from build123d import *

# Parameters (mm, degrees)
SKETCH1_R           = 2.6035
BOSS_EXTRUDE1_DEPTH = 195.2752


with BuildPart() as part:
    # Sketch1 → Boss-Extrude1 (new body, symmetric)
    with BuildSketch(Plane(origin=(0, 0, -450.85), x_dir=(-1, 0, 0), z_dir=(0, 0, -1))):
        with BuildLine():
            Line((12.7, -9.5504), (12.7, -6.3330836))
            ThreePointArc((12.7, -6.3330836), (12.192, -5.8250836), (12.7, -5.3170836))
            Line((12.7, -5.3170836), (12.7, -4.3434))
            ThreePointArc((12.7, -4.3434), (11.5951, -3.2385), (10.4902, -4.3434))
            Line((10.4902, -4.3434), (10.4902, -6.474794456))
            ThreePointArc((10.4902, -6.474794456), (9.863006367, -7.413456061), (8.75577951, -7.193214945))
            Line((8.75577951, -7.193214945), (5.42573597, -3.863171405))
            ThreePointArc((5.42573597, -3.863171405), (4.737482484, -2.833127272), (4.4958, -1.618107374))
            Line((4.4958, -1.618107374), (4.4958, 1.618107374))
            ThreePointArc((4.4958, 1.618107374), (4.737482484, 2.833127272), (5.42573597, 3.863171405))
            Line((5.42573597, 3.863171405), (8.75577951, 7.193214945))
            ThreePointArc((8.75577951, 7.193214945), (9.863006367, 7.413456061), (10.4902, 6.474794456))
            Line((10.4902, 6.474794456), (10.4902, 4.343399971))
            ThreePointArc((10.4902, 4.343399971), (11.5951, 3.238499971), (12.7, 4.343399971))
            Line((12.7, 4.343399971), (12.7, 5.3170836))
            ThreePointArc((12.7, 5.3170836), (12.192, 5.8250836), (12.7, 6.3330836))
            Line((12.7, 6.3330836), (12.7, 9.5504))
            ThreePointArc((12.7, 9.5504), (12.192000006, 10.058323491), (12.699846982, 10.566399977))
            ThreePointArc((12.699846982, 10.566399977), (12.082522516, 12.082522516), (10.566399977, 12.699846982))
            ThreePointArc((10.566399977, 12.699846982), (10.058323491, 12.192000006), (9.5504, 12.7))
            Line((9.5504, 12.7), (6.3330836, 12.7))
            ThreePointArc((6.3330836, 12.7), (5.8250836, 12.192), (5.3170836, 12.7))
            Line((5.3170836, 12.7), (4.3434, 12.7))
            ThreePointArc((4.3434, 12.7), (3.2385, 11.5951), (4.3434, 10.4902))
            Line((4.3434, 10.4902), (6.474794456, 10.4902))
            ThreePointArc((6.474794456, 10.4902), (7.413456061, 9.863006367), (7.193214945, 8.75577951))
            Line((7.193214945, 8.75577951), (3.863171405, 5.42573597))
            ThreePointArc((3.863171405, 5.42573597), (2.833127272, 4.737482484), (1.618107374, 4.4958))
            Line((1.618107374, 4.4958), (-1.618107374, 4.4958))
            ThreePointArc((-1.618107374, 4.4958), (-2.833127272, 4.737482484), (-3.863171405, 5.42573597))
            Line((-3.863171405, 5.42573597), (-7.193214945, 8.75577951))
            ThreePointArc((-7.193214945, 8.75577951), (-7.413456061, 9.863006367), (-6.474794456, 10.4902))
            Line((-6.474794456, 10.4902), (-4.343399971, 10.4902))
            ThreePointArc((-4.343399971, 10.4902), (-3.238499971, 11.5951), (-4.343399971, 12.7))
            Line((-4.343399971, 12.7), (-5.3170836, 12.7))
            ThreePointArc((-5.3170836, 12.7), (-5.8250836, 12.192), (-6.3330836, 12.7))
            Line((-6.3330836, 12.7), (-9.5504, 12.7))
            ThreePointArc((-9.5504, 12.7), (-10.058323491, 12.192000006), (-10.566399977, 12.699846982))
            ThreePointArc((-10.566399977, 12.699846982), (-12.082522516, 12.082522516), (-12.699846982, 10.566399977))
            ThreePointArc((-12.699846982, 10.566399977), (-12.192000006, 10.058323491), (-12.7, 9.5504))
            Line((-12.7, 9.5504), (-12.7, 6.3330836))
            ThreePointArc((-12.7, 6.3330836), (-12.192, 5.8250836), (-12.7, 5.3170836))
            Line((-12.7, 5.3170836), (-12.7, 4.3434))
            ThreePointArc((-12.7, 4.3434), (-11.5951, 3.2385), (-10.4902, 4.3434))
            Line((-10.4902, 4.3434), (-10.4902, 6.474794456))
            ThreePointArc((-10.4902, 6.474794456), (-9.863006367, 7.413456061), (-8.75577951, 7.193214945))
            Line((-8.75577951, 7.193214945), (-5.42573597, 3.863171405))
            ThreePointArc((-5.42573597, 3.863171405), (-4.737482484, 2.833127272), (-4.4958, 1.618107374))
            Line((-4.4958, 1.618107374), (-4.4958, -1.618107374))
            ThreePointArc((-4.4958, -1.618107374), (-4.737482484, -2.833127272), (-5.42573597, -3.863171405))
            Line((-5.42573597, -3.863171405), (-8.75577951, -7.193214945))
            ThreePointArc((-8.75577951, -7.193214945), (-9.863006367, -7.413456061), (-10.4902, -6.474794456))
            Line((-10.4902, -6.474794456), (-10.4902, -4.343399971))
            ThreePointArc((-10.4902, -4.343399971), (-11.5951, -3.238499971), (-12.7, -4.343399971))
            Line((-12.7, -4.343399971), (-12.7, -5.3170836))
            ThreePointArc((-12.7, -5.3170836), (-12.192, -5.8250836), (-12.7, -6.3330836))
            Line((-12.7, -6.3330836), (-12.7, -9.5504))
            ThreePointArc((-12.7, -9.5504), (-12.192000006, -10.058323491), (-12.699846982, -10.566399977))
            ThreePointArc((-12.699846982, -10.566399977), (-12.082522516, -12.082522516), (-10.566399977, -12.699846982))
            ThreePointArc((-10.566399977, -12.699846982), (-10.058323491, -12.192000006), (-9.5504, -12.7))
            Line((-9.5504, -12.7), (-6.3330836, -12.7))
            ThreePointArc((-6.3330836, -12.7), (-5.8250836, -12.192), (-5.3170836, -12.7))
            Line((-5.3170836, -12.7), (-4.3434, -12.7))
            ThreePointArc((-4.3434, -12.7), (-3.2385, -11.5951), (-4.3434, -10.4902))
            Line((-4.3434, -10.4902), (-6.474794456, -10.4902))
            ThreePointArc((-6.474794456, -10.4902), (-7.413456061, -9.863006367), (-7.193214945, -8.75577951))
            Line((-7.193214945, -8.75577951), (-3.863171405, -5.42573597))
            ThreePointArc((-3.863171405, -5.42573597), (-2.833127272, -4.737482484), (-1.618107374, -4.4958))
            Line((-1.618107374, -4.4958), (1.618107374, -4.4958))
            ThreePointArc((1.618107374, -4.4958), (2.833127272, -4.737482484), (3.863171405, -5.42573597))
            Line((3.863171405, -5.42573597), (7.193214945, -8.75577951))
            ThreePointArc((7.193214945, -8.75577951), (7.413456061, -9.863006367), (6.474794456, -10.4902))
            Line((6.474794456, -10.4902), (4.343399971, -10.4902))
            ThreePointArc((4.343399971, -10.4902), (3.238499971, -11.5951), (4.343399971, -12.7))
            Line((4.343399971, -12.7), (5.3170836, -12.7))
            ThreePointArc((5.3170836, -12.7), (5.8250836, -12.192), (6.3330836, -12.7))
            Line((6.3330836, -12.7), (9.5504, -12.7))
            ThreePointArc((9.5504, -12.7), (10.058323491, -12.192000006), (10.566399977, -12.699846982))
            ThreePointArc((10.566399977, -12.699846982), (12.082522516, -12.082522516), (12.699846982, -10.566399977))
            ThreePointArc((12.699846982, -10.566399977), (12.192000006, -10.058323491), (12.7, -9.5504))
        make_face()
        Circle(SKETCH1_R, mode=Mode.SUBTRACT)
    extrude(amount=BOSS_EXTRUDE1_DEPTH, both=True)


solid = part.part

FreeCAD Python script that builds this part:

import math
import FreeCAD as App
import Part
import Sketcher

V = App.Vector
Q = App.Units.Quantity

doc = App.newDocument("Part")
body = doc.addObject("PartDesign::Body", "Body")

# Sketch on XY plane
sketch1 = body.newObject("Sketcher::SketchObject", "Sketch")
sketch1.AttachmentSupport = (doc.getObject("XY_Plane"), [""])
sketch1.MapMode = "FlatFace"
sketch1.AttachmentOffset = App.Placement(V(0, 0, -17.75 * 25.4), App.Rotation())
sketch1.addGeometry([
    Part.LineSegment(V(-12.7, -9.6, 0), V(-12.7, -6.3, 0)),  # 0
    Part.ArcOfCircle(Part.Circle(V(-12.7, -5.8, 0), V(0, 0, 1), 0.5), math.radians(-90), math.radians(90)),  # 1
    Part.LineSegment(V(-12.7, -5.3, 0), V(-12.7, -4.3, 0)),  # 2
    Part.ArcOfCircle(Part.Circle(V(-11.6, -4.3, 0), V(0, 0, 1), 1.1), math.radians(0), math.radians(180)),  # 3
    Part.LineSegment(V(-10.5, -4.3, 0), V(-10.5, -6.5, 0)),  # 4
    Part.ArcOfCircle(Part.Circle(V(-9.5, -6.5, 0), V(0, 0, 1), 1), math.radians(180), math.radians(315)),  # 5
    Part.LineSegment(V(-8.8, -7.2, 0), V(-5.4, -3.9, 0)),  # 6
    Part.ArcOfCircle(Part.Circle(V(-7.7, -1.6, 0), V(0, 0, 1), 3.2), math.radians(-45), math.radians(0)),  # 7
    Part.LineSegment(V(-4.5, -1.6, 0), V(-4.5, 1.6, 0)),  # 8
    Part.ArcOfCircle(Part.Circle(V(-7.7, 1.6, 0), V(0, 0, 1), 3.2), math.radians(0), math.radians(45)),  # 9
    Part.LineSegment(V(-5.4, 3.9, 0), V(-8.8, 7.2, 0)),  # 10
    Part.ArcOfCircle(Part.Circle(V(-9.5, 6.5, 0), V(0, 0, 1), 1), math.radians(45), math.radians(180)),  # 11
    Part.LineSegment(V(-10.5, 6.5, 0), V(-10.5, 4.3, 0)),  # 12
    Part.ArcOfCircle(Part.Circle(V(-11.6, 4.3, 0), V(0, 0, 1), 1.1), math.radians(180), math.radians(360)),  # 13
    Part.LineSegment(V(-12.7, 4.3, 0), V(-12.7, 5.3, 0)),  # 14
    Part.ArcOfCircle(Part.Circle(V(-12.7, 5.8, 0), V(0, 0, 1), 0.5), math.radians(-90), math.radians(90)),  # 15
    Part.LineSegment(V(-12.7, 6.3, 0), V(-12.7, 9.6, 0)),  # 16
    Part.ArcOfCircle(Part.Circle(V(-12.7, 10.1, 0), V(0, 0, 1), 0.5), math.radians(-90), math.radians(90)),  # 17
    Part.ArcOfCircle(Part.Circle(V(-10.6, 10.6, 0), V(0, 0, 1), 2.1), math.radians(89), math.radians(181)),  # 18
    Part.ArcOfCircle(Part.Circle(V(-10.1, 12.7, 0), V(0, 0, 1), 0.5), math.radians(-180), math.radians(0)),  # 19
    Part.LineSegment(V(-9.6, 12.7, 0), V(-6.3, 12.7, 0)),  # 20
    Part.ArcOfCircle(Part.Circle(V(-5.8, 12.7, 0), V(0, 0, 1), 0.5), math.radians(180), math.radians(360)),  # 21
    Part.LineSegment(V(-5.3, 12.7, 0), V(-4.3, 12.7, 0)),  # 22
    Part.ArcOfCircle(Part.Circle(V(-4.3, 11.6, 0), V(0, 0, 1), 1.1), math.radians(-90), math.radians(90)),  # 23
    Part.LineSegment(V(-4.3, 10.5, 0), V(-6.5, 10.5, 0)),  # 24
    Part.ArcOfCircle(Part.Circle(V(-6.5, 9.5, 0), V(0, 0, 1), 1), math.radians(90), math.radians(225)),  # 25
    Part.LineSegment(V(-7.2, 8.8, 0), V(-3.9, 5.4, 0)),  # 26
    Part.ArcOfCircle(Part.Circle(V(-1.6, 7.7, 0), V(0, 0, 1), 3.2), math.radians(-135), math.radians(-90)),  # 27
    Part.LineSegment(V(-1.6, 4.5, 0), V(1.6, 4.5, 0)),  # 28
    Part.ArcOfCircle(Part.Circle(V(1.6, 7.7, 0), V(0, 0, 1), 3.2), math.radians(-90), math.radians(-45)),  # 29
    Part.LineSegment(V(3.9, 5.4, 0), V(7.2, 8.8, 0)),  # 30
    Part.ArcOfCircle(Part.Circle(V(6.5, 9.5, 0), V(0, 0, 1), 1), math.radians(-45), math.radians(90)),  # 31
    Part.LineSegment(V(6.5, 10.5, 0), V(4.3, 10.5, 0)),  # 32
    Part.ArcOfCircle(Part.Circle(V(4.3, 11.6, 0), V(0, 0, 1), 1.1), math.radians(90), math.radians(270)),  # 33
    Part.LineSegment(V(4.3, 12.7, 0), V(5.3, 12.7, 0)),  # 34
    Part.ArcOfCircle(Part.Circle(V(5.8, 12.7, 0), V(0, 0, 1), 0.5), math.radians(180), math.radians(360)),  # 35
    Part.LineSegment(V(6.3, 12.7, 0), V(9.6, 12.7, 0)),  # 36
    Part.ArcOfCircle(Part.Circle(V(10.1, 12.7, 0), V(0, 0, 1), 0.5), math.radians(180), math.radians(360)),  # 37
    Part.ArcOfCircle(Part.Circle(V(10.6, 10.6, 0), V(0, 0, 1), 2.1), math.radians(-1), math.radians(91)),  # 38
    Part.ArcOfCircle(Part.Circle(V(12.7, 10.1, 0), V(0, 0, 1), 0.5), math.radians(90), math.radians(270)),  # 39
    Part.LineSegment(V(12.7, 9.6, 0), V(12.7, 6.3, 0)),  # 40
    Part.ArcOfCircle(Part.Circle(V(12.7, 5.8, 0), V(0, 0, 1), 0.5), math.radians(90), math.radians(270)),  # 41
    Part.LineSegment(V(12.7, 5.3, 0), V(12.7, 4.3, 0)),  # 42
    Part.ArcOfCircle(Part.Circle(V(11.6, 4.3, 0), V(0, 0, 1), 1.1), math.radians(180), math.radians(360)),  # 43
    Part.LineSegment(V(10.5, 4.3, 0), V(10.5, 6.5, 0)),  # 44
    Part.ArcOfCircle(Part.Circle(V(9.5, 6.5, 0), V(0, 0, 1), 1), math.radians(0), math.radians(135)),  # 45
    Part.LineSegment(V(8.8, 7.2, 0), V(5.4, 3.9, 0)),  # 46
    Part.ArcOfCircle(Part.Circle(V(7.7, 1.6, 0), V(0, 0, 1), 3.2), math.radians(135), math.radians(180)),  # 47
    Part.LineSegment(V(4.5, 1.6, 0), V(4.5, -1.6, 0)),  # 48
    Part.ArcOfCircle(Part.Circle(V(7.7, -1.6, 0), V(0, 0, 1), 3.2), math.radians(180), math.radians(225)),  # 49
    Part.LineSegment(V(5.4, -3.9, 0), V(8.8, -7.2, 0)),  # 50
    Part.ArcOfCircle(Part.Circle(V(9.5, -6.5, 0), V(0, 0, 1), 1), math.radians(-135), math.radians(0)),  # 51
    Part.LineSegment(V(10.5, -6.5, 0), V(10.5, -4.3, 0)),  # 52
    Part.ArcOfCircle(Part.Circle(V(11.6, -4.3, 0), V(0, 0, 1), 1.1), math.radians(0), math.radians(180)),  # 53
    Part.LineSegment(V(12.7, -4.3, 0), V(12.7, -5.3, 0)),  # 54
    Part.ArcOfCircle(Part.Circle(V(12.7, -5.8, 0), V(0, 0, 1), 0.5), math.radians(90), math.radians(270)),  # 55
    Part.LineSegment(V(12.7, -6.3, 0), V(12.7, -9.6, 0)),  # 56
    Part.ArcOfCircle(Part.Circle(V(12.7, -10.1, 0), V(0, 0, 1), 0.5), math.radians(90), math.radians(270)),  # 57
    Part.ArcOfCircle(Part.Circle(V(10.6, -10.6, 0), V(0, 0, 1), 2.1), math.radians(-91), math.radians(1)),  # 58
    Part.ArcOfCircle(Part.Circle(V(10.1, -12.7, 0), V(0, 0, 1), 0.5), math.radians(0), math.radians(180)),  # 59
    Part.LineSegment(V(9.6, -12.7, 0), V(6.3, -12.7, 0)),  # 60
    Part.ArcOfCircle(Part.Circle(V(5.8, -12.7, 0), V(0, 0, 1), 0.5), math.radians(0), math.radians(180)),  # 61
    Part.LineSegment(V(5.3, -12.7, 0), V(4.3, -12.7, 0)),  # 62
    Part.ArcOfCircle(Part.Circle(V(4.3, -11.6, 0), V(0, 0, 1), 1.1), math.radians(90), math.radians(270)),  # 63
    Part.LineSegment(V(4.3, -10.5, 0), V(6.5, -10.5, 0)),  # 64
    Part.ArcOfCircle(Part.Circle(V(6.5, -9.5, 0), V(0, 0, 1), 1), math.radians(-90), math.radians(45)),  # 65
    Part.LineSegment(V(7.2, -8.8, 0), V(3.9, -5.4, 0)),  # 66
    Part.ArcOfCircle(Part.Circle(V(1.6, -7.7, 0), V(0, 0, 1), 3.2), math.radians(45), math.radians(90)),  # 67
    Part.LineSegment(V(1.6, -4.5, 0), V(-1.6, -4.5, 0)),  # 68
    Part.ArcOfCircle(Part.Circle(V(-1.6, -7.7, 0), V(0, 0, 1), 3.2), math.radians(90), math.radians(135)),  # 69
    Part.LineSegment(V(-3.9, -5.4, 0), V(-7.2, -8.8, 0)),  # 70
    Part.ArcOfCircle(Part.Circle(V(-6.5, -9.5, 0), V(0, 0, 1), 1), math.radians(135), math.radians(270)),  # 71
    Part.LineSegment(V(-6.5, -10.5, 0), V(-4.3, -10.5, 0)),  # 72
    Part.ArcOfCircle(Part.Circle(V(-4.3, -11.6, 0), V(0, 0, 1), 1.1), math.radians(-90), math.radians(90)),  # 73
    Part.LineSegment(V(-4.3, -12.7, 0), V(-5.3, -12.7, 0)),  # 74
    Part.ArcOfCircle(Part.Circle(V(-5.8, -12.7, 0), V(0, 0, 1), 0.5), math.radians(0), math.radians(180)),  # 75
    Part.LineSegment(V(-6.3, -12.7, 0), V(-9.6, -12.7, 0)),  # 76
    Part.ArcOfCircle(Part.Circle(V(-10.1, -12.7, 0), V(0, 0, 1), 0.5), math.radians(0), math.radians(180)),  # 77
    Part.ArcOfCircle(Part.Circle(V(-10.6, -10.6, 0), V(0, 0, 1), 2.1), math.radians(179), math.radians(271)),  # 78
    Part.ArcOfCircle(Part.Circle(V(-12.7, -10.1, 0), V(0, 0, 1), 0.5), math.radians(-90), math.radians(90)),  # 79
    Part.Circle(V(0, 0, 0), V(0, 0, 1), 2.6),  # 80
], False)
sketch1.addConstraint([
    Sketcher.Constraint("Coincident", 0, 2, 1, 1),
    Sketcher.Constraint("Coincident", 1, 2, 2, 1),
    Sketcher.Constraint("Tangent", 2, 2, 3, 2),
    Sketcher.Constraint("Tangent", 3, 1, 4, 1),
    Sketcher.Constraint("Tangent", 4, 2, 5, 1),
    Sketcher.Constraint("Tangent", 5, 2, 6, 1),
    Sketcher.Constraint("Tangent", 6, 2, 7, 1),
    Sketcher.Constraint("Tangent", 7, 2, 8, 1),
    Sketcher.Constraint("Tangent", 8, 2, 9, 1),
    Sketcher.Constraint("Tangent", 9, 2, 10, 1),
    Sketcher.Constraint("Tangent", 10, 2, 11, 1),
    Sketcher.Constraint("Tangent", 11, 2, 12, 1),
    Sketcher.Constraint("Tangent", 12, 2, 13, 2),
    Sketcher.Constraint("Tangent", 13, 1, 14, 1),
    Sketcher.Constraint("Coincident", 14, 2, 15, 1),
    Sketcher.Constraint("Coincident", 15, 2, 16, 1),
    Sketcher.Constraint("Coincident", 16, 2, 17, 1),
    Sketcher.Constraint("Coincident", 17, 2, 18, 2),
    Sketcher.Constraint("Coincident", 18, 1, 19, 1),
    Sketcher.Constraint("Coincident", 19, 2, 20, 1),
    Sketcher.Constraint("Coincident", 20, 2, 21, 1),
    Sketcher.Constraint("Coincident", 21, 2, 22, 1),
    Sketcher.Constraint("Tangent", 22, 2, 23, 2),
    Sketcher.Constraint("Tangent", 23, 1, 24, 1),
    Sketcher.Constraint("Tangent", 24, 2, 25, 1),
    Sketcher.Constraint("Tangent", 25, 2, 26, 1),
    Sketcher.Constraint("Tangent", 26, 2, 27, 1),
    Sketcher.Constraint("Tangent", 27, 2, 28, 1),
    Sketcher.Constraint("Tangent", 28, 2, 29, 1),
    Sketcher.Constraint("Tangent", 29, 2, 30, 1),
    Sketcher.Constraint("Tangent", 30, 2, 31, 1),
    Sketcher.Constraint("Tangent", 31, 2, 32, 1),
    Sketcher.Constraint("Tangent", 32, 2, 33, 2),
    Sketcher.Constraint("Tangent", 33, 1, 34, 1),
    Sketcher.Constraint("Coincident", 34, 2, 35, 1),
    Sketcher.Constraint("Coincident", 35, 2, 36, 1),
    Sketcher.Constraint("Coincident", 36, 2, 37, 1),
    Sketcher.Constraint("Coincident", 37, 2, 38, 2),
    Sketcher.Constraint("Coincident", 38, 1, 39, 1),
    Sketcher.Constraint("Coincident", 39, 2, 40, 1),
    Sketcher.Constraint("Coincident", 40, 2, 41, 1),
    Sketcher.Constraint("Coincident", 41, 2, 42, 1),
    Sketcher.Constraint("Tangent", 42, 2, 43, 2),
    Sketcher.Constraint("Tangent", 43, 1, 44, 1),
    Sketcher.Constraint("Tangent", 44, 2, 45, 1),
    Sketcher.Constraint("Tangent", 45, 2, 46, 1),
    Sketcher.Constraint("Tangent", 46, 2, 47, 1),
    Sketcher.Constraint("Tangent", 47, 2, 48, 1),
    Sketcher.Constraint("Tangent", 48, 2, 49, 1),
    Sketcher.Constraint("Tangent", 49, 2, 50, 1),
    Sketcher.Constraint("Tangent", 50, 2, 51, 1),
    Sketcher.Constraint("Tangent", 51, 2, 52, 1),
    Sketcher.Constraint("Tangent", 52, 2, 53, 2),
    Sketcher.Constraint("Tangent", 53, 1, 54, 1),
    Sketcher.Constraint("Coincident", 54, 2, 55, 1),
    Sketcher.Constraint("Coincident", 55, 2, 56, 1),
    Sketcher.Constraint("Coincident", 56, 2, 57, 1),
    Sketcher.Constraint("Coincident", 57, 2, 58, 2),
    Sketcher.Constraint("Coincident", 58, 1, 59, 1),
    Sketcher.Constraint("Coincident", 59, 2, 60, 1),
    Sketcher.Constraint("Coincident", 60, 2, 61, 1),
    Sketcher.Constraint("Coincident", 61, 2, 62, 1),
    Sketcher.Constraint("Tangent", 62, 2, 63, 2),
    Sketcher.Constraint("Tangent", 63, 1, 64, 1),
    Sketcher.Constraint("Tangent", 64, 2, 65, 1),
    Sketcher.Constraint("Tangent", 65, 2, 66, 1),
    Sketcher.Constraint("Tangent", 66, 2, 67, 1),
    Sketcher.Constraint("Tangent", 67, 2, 68, 1),
    Sketcher.Constraint("Tangent", 68, 2, 69, 1),
    Sketcher.Constraint("Tangent", 69, 2, 70, 1),
    Sketcher.Constraint("Tangent", 70, 2, 71, 1),
    Sketcher.Constraint("Tangent", 71, 2, 72, 1),
    Sketcher.Constraint("Tangent", 72, 2, 73, 2),
    Sketcher.Constraint("Tangent", 73, 1, 74, 1),
    Sketcher.Constraint("Coincident", 74, 2, 75, 1),
    Sketcher.Constraint("Coincident", 75, 2, 76, 1),
    Sketcher.Constraint("Coincident", 76, 2, 77, 1),
    Sketcher.Constraint("Coincident", 77, 2, 78, 2),
    Sketcher.Constraint("Coincident", 78, 1, 79, 1),
    Sketcher.Constraint("Coincident", 79, 2, 0, 1),
    Sketcher.Constraint("Vertical", 0),
    Sketcher.Constraint("Vertical", 2),
    Sketcher.Constraint("Vertical", 4),
    Sketcher.Constraint("Vertical", 8),
    Sketcher.Constraint("Vertical", 12),
    Sketcher.Constraint("Vertical", 14),
    Sketcher.Constraint("Vertical", 16),
    Sketcher.Constraint("Horizontal", 20),
    Sketcher.Constraint("Horizontal", 22),
    Sketcher.Constraint("Horizontal", 24),
    Sketcher.Constraint("Horizontal", 28),
    Sketcher.Constraint("Horizontal", 32),
    Sketcher.Constraint("Horizontal", 34),
    Sketcher.Constraint("Horizontal", 36),
    Sketcher.Constraint("Vertical", 40),
    Sketcher.Constraint("Vertical", 42),
    Sketcher.Constraint("Vertical", 44),
    Sketcher.Constraint("Vertical", 48),
    Sketcher.Constraint("Vertical", 52),
    Sketcher.Constraint("Vertical", 54),
    Sketcher.Constraint("Vertical", 56),
    Sketcher.Constraint("Horizontal", 60),
    Sketcher.Constraint("Horizontal", 62),
    Sketcher.Constraint("Horizontal", 64),
    Sketcher.Constraint("Horizontal", 68),
    Sketcher.Constraint("Horizontal", 72),
    Sketcher.Constraint("Horizontal", 74),
    Sketcher.Constraint("Horizontal", 76),
    Sketcher.Constraint("Coincident", 80, 3, -1, 1),
    Sketcher.Constraint("Equal", 7, 9),
    Sketcher.Constraint("Equal", 5, 11),
    Sketcher.Constraint("Equal", 3, 13),
    Sketcher.Constraint("Equal", 1, 15),
    Sketcher.Constraint("Equal", 15, 17),
    Sketcher.Constraint("Equal", 17, 19),
    Sketcher.Constraint("Equal", 19, 21),
    Sketcher.Constraint("Equal", 13, 23),
    Sketcher.Constraint("Equal", 11, 25),
    Sketcher.Constraint("Equal", 9, 27),
    Sketcher.Constraint("Equal", 27, 29),
    Sketcher.Constraint("Equal", 25, 31),
    Sketcher.Constraint("Equal", 23, 33),
    Sketcher.Constraint("Equal", 21, 35),
    Sketcher.Constraint("Equal", 35, 37),
    Sketcher.Constraint("Equal", 18, 38),
    Sketcher.Constraint("Equal", 37, 39),
    Sketcher.Constraint("Equal", 39, 41),
    Sketcher.Constraint("Equal", 33, 43),
    Sketcher.Constraint("Equal", 31, 45),
    Sketcher.Constraint("Equal", 29, 47),
    Sketcher.Constraint("Equal", 47, 49),
    Sketcher.Constraint("Equal", 45, 51),
    Sketcher.Constraint("Equal", 43, 53),
    Sketcher.Constraint("Equal", 41, 55),
    Sketcher.Constraint("Equal", 55, 57),
    Sketcher.Constraint("Equal", 38, 58),
    Sketcher.Constraint("Equal", 57, 59),
    Sketcher.Constraint("Equal", 59, 61),
    Sketcher.Constraint("Equal", 53, 63),
    Sketcher.Constraint("Equal", 51, 65),
    Sketcher.Constraint("Equal", 49, 67),
    Sketcher.Constraint("Equal", 67, 69),
    Sketcher.Constraint("Equal", 65, 71),
    Sketcher.Constraint("Equal", 63, 73),
    Sketcher.Constraint("Equal", 61, 75),
    Sketcher.Constraint("Equal", 75, 77),
    Sketcher.Constraint("Equal", 58, 78),
    Sketcher.Constraint("Equal", 77, 79),
    Sketcher.Constraint("Symmetric", 1, 3, 41, 3, -1, 1),
    Sketcher.Constraint("Symmetric", 3, 3, 43, 3, -1, 1),
    Sketcher.Constraint("Symmetric", 7, 3, 47, 3, -1, 1),
    Sketcher.Constraint("Symmetric", 11, 3, 51, 3, -1, 1),
    Sketcher.Constraint("Symmetric", 15, 3, 55, 3, -1, 1),
    Sketcher.Constraint("Symmetric", 17, 3, 57, 3, -1, 1),
    Sketcher.Constraint("Symmetric", 18, 3, 58, 3, -1, 1),
    Sketcher.Constraint("Symmetric", 19, 3, 59, 3, -1, 1),
    Sketcher.Constraint("Symmetric", 21, 3, 61, 3, -1, 1),
    Sketcher.Constraint("Symmetric", 23, 3, 63, 3, -1, 1),
    Sketcher.Constraint("Symmetric", 27, 3, 67, 3, -1, 1),
    Sketcher.Constraint("Symmetric", 31, 3, 71, 3, -1, 1),
    Sketcher.Constraint("Symmetric", 35, 3, 75, 3, -1, 1),
    Sketcher.Constraint("Symmetric", 37, 3, 77, 3, -1, 1),
    Sketcher.Constraint("Symmetric", 38, 3, 78, 3, -1, 1),
    Sketcher.Constraint("Symmetric", 39, 3, 79, 3, -1, 1),
    Sketcher.Constraint("Symmetric", 25, 3, 31, 3, -2),
    Sketcher.Constraint("Symmetric", 21, 3, 35, 3, -2),
    Sketcher.Constraint("Symmetric", 19, 3, 37, 3, -2),
    Sketcher.Constraint("Symmetric", 18, 3, 38, 3, -2),
    Sketcher.Constraint("Symmetric", 17, 3, 39, 3, -2),
    Sketcher.Constraint("Symmetric", 15, 3, 41, 3, -2),
    Sketcher.Constraint("Symmetric", 13, 3, 43, 3, -2),
    Sketcher.Constraint("Symmetric", 10, 2, 45, 2, -2),
    Sketcher.Constraint("Symmetric", 6, 2, 49, 2, -2),
    Sketcher.Constraint("Symmetric", 66, 2, 69, 2, -2),
    Sketcher.Constraint("Perpendicular", 6, 10),
    Sketcher.Constraint("Parallel", 10, 26),
    Sketcher.Constraint("Perpendicular", 26, 30),
    Sketcher.Constraint("Horizontal", 19, 3, 21, 3),
    Sketcher.Constraint("Horizontal", 3, 3, 53, 3),
    Sketcher.Constraint("Horizontal", 37, 3, 19, 2),
    Sketcher.Constraint("Horizontal", 20, 2, 21, 2),
    Sketcher.Constraint("Horizontal", 34, 2, 35, 2),
    Sketcher.Constraint("Horizontal", 77, 3, 59, 2),
    Sketcher.Constraint("Horizontal", 74, 2, 75, 2),
    Sketcher.Constraint("Vertical", 15, 3, 17, 3),
    Sketcher.Constraint("Vertical", 33, 3, 63, 3),
    Sketcher.Constraint("Vertical", 23, 3, 73, 3),
    Sketcher.Constraint("Vertical", 79, 3, 0, 2),
    Sketcher.Constraint("Vertical", 0, 2, 1, 2),
    Sketcher.Constraint("Vertical", 14, 2, 15, 2),
    Sketcher.Constraint("Vertical", 57, 3, 39, 2),
    Sketcher.Constraint("Vertical", 54, 2, 55, 2),
    Sketcher.Constraint("Equal", 76, 0),
    Sketcher.Constraint("Equal", 74, 2),
    Sketcher.Constraint("Equal", 72, 4),
    Sketcher.Constraint("Equal", 68, 8),
    Sketcher.Constraint("Equal", 10, 26),
    Sketcher.Constraint("Radius", 1, Q("0.02 in")),
    Sketcher.Constraint("Radius", 5, Q("0.04 in")),
    Sketcher.Constraint("Diameter", 80, Q("0.205 in")),
    Sketcher.Constraint("Radius", 7, Q("0.125 in")),
    Sketcher.Constraint("Radius", 18, Q("0.083 in")),
    Sketcher.Constraint("DistanceX", 1, 3, -1, 1, Q("0.5 in")),
    Sketcher.Constraint("DistanceY", -1, 1, 19, 3, Q("0.5 in")),
    Sketcher.Constraint("Radius", 3, Q("0.0435 in")),
    Sketcher.Constraint("DistanceY", 3, 3, -1, 1, Q("0.171 in")),
    Sketcher.Constraint("DistanceX", 7, 3, -1, 1, Q("0.302 in")),
    Sketcher.Constraint("DistanceY", -1, 1, 17, 3, Q("0.396 in")),
    Sketcher.Constraint("DistanceX", 18, 3, -1, 1, Q("0.417 in")),
    Sketcher.Constraint("DistanceY", -1, 1, 18, 3, Q("0.417 in")),
    Sketcher.Constraint("DistanceX", 20, 1, 20, 2, Q("3.217316 mm")),
    Sketcher.Constraint("DistanceX", 24, 2, 24, 1, Q("2.131394 mm")),
])
pad1 = body.newObject("PartDesign::Pad", "Pad")
pad1.Profile = sketch1
pad1.Length = Q("15.376 in")
pad1.Midplane = True

doc.recompute()
